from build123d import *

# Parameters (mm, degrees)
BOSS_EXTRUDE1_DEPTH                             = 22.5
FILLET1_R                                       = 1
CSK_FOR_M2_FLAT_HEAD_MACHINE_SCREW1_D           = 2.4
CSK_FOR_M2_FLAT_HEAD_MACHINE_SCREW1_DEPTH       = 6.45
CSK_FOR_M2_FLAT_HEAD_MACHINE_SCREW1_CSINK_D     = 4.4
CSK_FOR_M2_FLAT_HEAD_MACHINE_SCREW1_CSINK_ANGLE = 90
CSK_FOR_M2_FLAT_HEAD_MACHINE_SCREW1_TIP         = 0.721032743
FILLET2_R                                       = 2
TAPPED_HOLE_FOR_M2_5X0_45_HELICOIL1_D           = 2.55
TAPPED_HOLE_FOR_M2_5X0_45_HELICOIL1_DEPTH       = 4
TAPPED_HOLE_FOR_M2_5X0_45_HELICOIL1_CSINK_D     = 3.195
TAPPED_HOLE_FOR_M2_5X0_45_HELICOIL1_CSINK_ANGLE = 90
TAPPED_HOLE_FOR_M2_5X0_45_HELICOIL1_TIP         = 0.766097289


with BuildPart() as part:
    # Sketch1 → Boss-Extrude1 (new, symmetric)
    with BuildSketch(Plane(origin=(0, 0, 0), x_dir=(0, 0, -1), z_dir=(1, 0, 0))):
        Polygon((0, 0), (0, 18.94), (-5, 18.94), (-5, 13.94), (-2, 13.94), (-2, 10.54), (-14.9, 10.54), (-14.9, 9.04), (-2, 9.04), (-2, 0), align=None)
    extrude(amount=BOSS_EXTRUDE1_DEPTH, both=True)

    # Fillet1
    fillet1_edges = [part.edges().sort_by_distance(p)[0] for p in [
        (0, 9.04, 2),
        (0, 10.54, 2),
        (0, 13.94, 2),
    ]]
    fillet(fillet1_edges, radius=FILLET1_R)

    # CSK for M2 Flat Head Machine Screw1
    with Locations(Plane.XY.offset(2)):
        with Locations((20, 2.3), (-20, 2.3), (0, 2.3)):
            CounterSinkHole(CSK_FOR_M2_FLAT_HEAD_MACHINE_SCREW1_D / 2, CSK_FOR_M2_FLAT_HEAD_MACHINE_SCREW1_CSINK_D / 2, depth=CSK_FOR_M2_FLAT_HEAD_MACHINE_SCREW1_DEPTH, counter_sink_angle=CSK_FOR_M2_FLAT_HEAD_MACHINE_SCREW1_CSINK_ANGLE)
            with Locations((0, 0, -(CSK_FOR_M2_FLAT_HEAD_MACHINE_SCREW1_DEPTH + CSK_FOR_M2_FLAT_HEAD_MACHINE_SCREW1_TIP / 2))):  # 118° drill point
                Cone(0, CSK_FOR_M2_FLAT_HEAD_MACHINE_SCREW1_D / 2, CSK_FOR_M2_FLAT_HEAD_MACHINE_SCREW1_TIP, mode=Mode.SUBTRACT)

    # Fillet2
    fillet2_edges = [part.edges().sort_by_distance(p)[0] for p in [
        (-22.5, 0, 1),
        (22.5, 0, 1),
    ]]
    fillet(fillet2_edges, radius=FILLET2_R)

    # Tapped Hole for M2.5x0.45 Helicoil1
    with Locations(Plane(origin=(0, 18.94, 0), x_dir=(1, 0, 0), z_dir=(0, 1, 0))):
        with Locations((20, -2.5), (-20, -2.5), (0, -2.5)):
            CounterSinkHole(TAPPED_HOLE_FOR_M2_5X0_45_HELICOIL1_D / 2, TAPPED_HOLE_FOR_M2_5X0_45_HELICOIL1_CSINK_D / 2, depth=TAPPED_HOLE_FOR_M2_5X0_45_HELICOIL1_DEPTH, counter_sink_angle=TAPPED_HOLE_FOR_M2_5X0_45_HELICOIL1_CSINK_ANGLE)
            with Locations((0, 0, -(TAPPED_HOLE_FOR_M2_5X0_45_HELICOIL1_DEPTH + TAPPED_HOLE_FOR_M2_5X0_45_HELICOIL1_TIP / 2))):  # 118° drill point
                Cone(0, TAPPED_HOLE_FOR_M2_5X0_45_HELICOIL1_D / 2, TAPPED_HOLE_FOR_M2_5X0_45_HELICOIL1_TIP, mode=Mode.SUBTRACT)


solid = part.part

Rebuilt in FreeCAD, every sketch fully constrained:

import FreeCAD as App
import Part
import Sketcher
Q = App.Units.Quantity


def edges_at(feature, points):
    """Names of the edges that pass closest to the given points."""
    edges = feature.Shape.Edges
    near = lambda p: min(range(len(edges)), key=lambda i: edges[i].distToShape(Part.Vertex(*p))[0])
    return sorted({f"Edge{near(p) + 1}" for p in points})

doc = App.newDocument("Part")
params = doc.addObject("Spreadsheet::Sheet", "Params")
for row, (alias, value) in enumerate([
    ("sketch1_width", "5 mm"),
    ("sketch1_height", "3 mm"),
    ("sketch1_width2", "3.4 mm"),
    ("sketch1_width3", "1.5 mm"),
    ("sketch1_height2", "12.9 mm"),
    ("pad1_length", "45 mm"),
    ("fillet_radius", "1 mm"),
    ("sketch2_diameter", "2.4 mm"),
    ("hole_diameter", "2.4 mm"),
    ("hole_depth", "6.45 mm"),
    ("hole_csink_diameter", "4.4 mm"),
    ("fillet2_radius", "2 mm"),
    ("sketch3_diameter", "2.55 mm"),
    ("hole2_diameter", "2.55 mm"),
    ("hole2_depth", "4 mm"),
    ("hole2_csink_diameter", "3.195 mm"),
], start=1):
    params.set(f"A{row}", alias)
    params.set(f"B{row}", "=" + value)
    params.setAlias(f"B{row}", alias)

body = doc.addObject("PartDesign::Body", "Body")

# Sketch on YZ plane
sketch1 = doc.addObject("Sketcher::SketchObject", "Sketch")
body.addObject(sketch1)
sketch1.AttachmentSupport = (doc.YZ_Plane, [""])
sketch1.MapMode = "FlatFace"
sketch1.addGeometry([
    Part.LineSegment(App.Vector(0, 0, 0), App.Vector(18.9, 0, 0)),  # 0
    Part.LineSegment(App.Vector(18.9, 0, 0), App.Vector(18.9, 5, 0)),  # 1
    Part.LineSegment(App.Vector(18.9, 5, 0), App.Vector(13.9, 5, 0)),  # 2
    Part.LineSegment(App.Vector(13.9, 5, 0), App.Vector(13.9, 2, 0)),  # 3
    Part.LineSegment(App.Vector(13.9, 2, 0), App.Vector(10.5, 2, 0)),  # 4
    Part.LineSegment(App.Vector(10.5, 2, 0), App.Vector(10.5, 14.9, 0)),  # 5
    Part.LineSegment(App.Vector(10.5, 14.9, 0), App.Vector(9, 14.9, 0)),  # 6
    Part.LineSegment(App.Vector(9, 14.9, 0), App.Vector(9, 2, 0)),  # 7
    Part.LineSegment(App.Vector(9, 2, 0), App.Vector(0, 2, 0)),  # 8
    Part.LineSegment(App.Vector(0, 2, 0), App.Vector(0, 0, 0)),  # 9
], False)
sketch1.addConstraint([
    Sketcher.Constraint("Coincident", 0, 2, 1, 1),
    Sketcher.Constraint("Coincident", 1, 2, 2, 1),
    Sketcher.Constraint("Coincident", 2, 2, 3, 1),
    Sketcher.Constraint("Coincident", 3, 2, 4, 1),
    Sketcher.Constraint("Coincident", 4, 2, 5, 1),
    Sketcher.Constraint("Coincident", 5, 2, 6, 1),
    Sketcher.Constraint("Coincident", 6, 2, 7, 1),
    Sketcher.Constraint("Coincident", 7, 2, 8, 1),
    Sketcher.Constraint("Coincident", 8, 2, 9, 1),
    Sketcher.Constraint("Coincident", 9, 2, 0, 1),
    Sketcher.Constraint("Horizontal", 0),
    Sketcher.Constraint("Vertical", 1),
    Sketcher.Constraint("Horizontal", 2),
    Sketcher.Constraint("Vertical", 3),
    Sketcher.Constraint("Horizontal", 4),
    Sketcher.Constraint("Vertical", 5),
    Sketcher.Constraint("Horizontal", 6),
    Sketcher.Constraint("Vertical", 7),
    Sketcher.Constraint("Horizontal", 8),
    Sketcher.Constraint("Vertical", 9),
    Sketcher.Constraint("Coincident", 9, 2, -1, 1),
    Sketcher.Constraint("Horizontal", 4, 2, 7, 2),
    Sketcher.Constraint("Equal", 2, 1),
    Sketcher.Constraint("DistanceX", 2, 2, 2, 1, Q("5 mm")),
    Sketcher.Constraint("DistanceY", 3, 2, 3, 1, Q("3 mm")),
    Sketcher.Constraint("DistanceX", 4, 2, 4, 1, Q("3.4 mm")),
    Sketcher.Constraint("DistanceX", 6, 2, 6, 1, Q("1.5 mm")),
    Sketcher.Constraint("DistanceY", 5, 1, 5, 2, Q("12.9 mm")),
    Sketcher.Constraint("DistanceX", 0, 1, 0, 2, Q("18.94 mm")),
])
sketch1.setExpression("Constraints[23]", "Params.sketch1_width")
sketch1.setExpression("Constraints[24]", "Params.sketch1_height")
sketch1.setExpression("Constraints[25]", "Params.sketch1_width2")
sketch1.setExpression("Constraints[26]", "Params.sketch1_width3")
sketch1.setExpression("Constraints[27]", "Params.sketch1_height2")
pad1 = doc.addObject("PartDesign::Pad", "Pad")
body.addObject(pad1)
pad1.Profile = sketch1
pad1.setExpression("Length", "Params.pad1_length")
pad1.Midplane = True
doc.recompute()

fillet = doc.addObject("PartDesign::Fillet", "Fillet")
body.addObject(fillet)
fillet.Base = (pad1, edges_at(pad1, [(0, 9.04, 2), (0, 10.54, 2), (0, 13.94, 2)]))
fillet.setExpression("Radius", "Params.fillet_radius")

# Sketch on XY plane
sketch2 = doc.addObject("Sketcher::SketchObject", "Sketch001")
body.addObject(sketch2)
sketch2.AttachmentSupport = (doc.XY_Plane, [""])
sketch2.MapMode = "FlatFace"
sketch2.AttachmentOffset = App.Placement(App.Vector(0, 0, 2), App.Rotation())
sketch2.addGeometry([
    Part.Circle(App.Vector(20, 2.3, 0), App.Vector(0, 0, 1), 1.2),
    Part.Circle(App.Vector(-20, 2.3, 0), App.Vector(0, 0, 1), 1.2),
    Part.Circle(App.Vector(0, 2.3, 0), App.Vector(0, 0, 1), 1.2),
], False)
sketch2.addConstraint([
    Sketcher.Constraint("Equal", 0, 1),
    Sketcher.Constraint("Equal", 1, 2),
    Sketcher.Constraint("Symmetric", 0, 3, 1, 3, -2),
    Sketcher.Constraint("PointOnObject", 2, 3, -2),
    Sketcher.Constraint("Horizontal", 1, 3, 2, 3),
    Sketcher.Constraint("Diameter", 0, Q("2.4 mm")),
    Sketcher.Constraint("DistanceX", -1, 1, 0, 3, Q("20 mm")),
    Sketcher.Constraint("DistanceY", -1, 1, 0, 3, Q("2.3 mm")),
])
sketch2.setExpression("Constraints[5]", "Params.sketch2_diameter")
doc.recompute()
hole = doc.addObject("PartDesign::Hole", "Hole")
body.addObject(hole)
hole.Profile = sketch2
hole.ThreadType = "None"
hole.setExpression("Diameter", "Params.hole_diameter")
hole.DepthType = "Dimension"
hole.setExpression("Depth", "Params.hole_depth")
hole.DrillPoint = "Angled"
hole.DrillPointAngle = 118
hole.HoleCutType = "Countersink"
hole.setExpression("HoleCutDiameter", "Params.hole_csink_diameter")
hole.HoleCutCountersinkAngle = 90
doc.recompute()

fillet2 = doc.addObject("PartDesign::Fillet", "Fillet001")
body.addObject(fillet2)
fillet2.Base = (hole, edges_at(hole, [(-22.5, 0, 1), (22.5, 0, 1)]))
fillet2.setExpression("Radius", "Params.fillet2_radius")

# Sketch on XZ plane
sketch3 = doc.addObject("Sketcher::SketchObject", "Sketch002")
body.addObject(sketch3)
sketch3.AttachmentSupport = (doc.XZ_Plane, [""])
sketch3.MapMode = "FlatFace"
sketch3.AttachmentOffset = App.Placement(App.Vector(0, 0, -18.94), App.Rotation())
sketch3.addGeometry([
    Part.Circle(App.Vector(20, 2.5, 0), App.Vector(0, 0, 1), 1.3),
    Part.Circle(App.Vector(-20, 2.5, 0), App.Vector(0, 0, 1), 1.3),
    Part.Circle(App.Vector(0, 2.5, 0), App.Vector(0, 0, 1), 1.3),
], False)
sketch3.addConstraint([
    Sketcher.Constraint("Equal", 0, 1),
    Sketcher.Constraint("Equal", 1, 2),
    Sketcher.Constraint("Symmetric", 0, 3, 1, 3, -2),
    Sketcher.Constraint("PointOnObject", 2, 3, -2),
    Sketcher.Constraint("Horizontal", 1, 3, 2, 3),
    Sketcher.Constraint("Diameter", 0, Q("2.55 mm")),
    Sketcher.Constraint("DistanceX", -1, 1, 0, 3, Q("20 mm")),
    Sketcher.Constraint("DistanceY", -1, 1, 0, 3, Q("2.5 mm")),
])
sketch3.setExpression("Constraints[5]", "Params.sketch3_diameter")
doc.recompute()
hole2 = doc.addObject("PartDesign::Hole", "Hole001")
body.addObject(hole2)
hole2.Profile = sketch3
hole2.ThreadType = "None"
hole2.setExpression("Diameter", "Params.hole2_diameter")
hole2.DepthType = "Dimension"
hole2.setExpression("Depth", "Params.hole2_depth")
hole2.DrillPoint = "Angled"
hole2.DrillPointAngle = 118
hole2.HoleCutType = "Countersink"
hole2.setExpression("HoleCutDiameter", "Params.hole2_csink_diameter")
hole2.HoleCutCountersinkAngle = 90
hole2.Reversed = True

doc.recompute()
